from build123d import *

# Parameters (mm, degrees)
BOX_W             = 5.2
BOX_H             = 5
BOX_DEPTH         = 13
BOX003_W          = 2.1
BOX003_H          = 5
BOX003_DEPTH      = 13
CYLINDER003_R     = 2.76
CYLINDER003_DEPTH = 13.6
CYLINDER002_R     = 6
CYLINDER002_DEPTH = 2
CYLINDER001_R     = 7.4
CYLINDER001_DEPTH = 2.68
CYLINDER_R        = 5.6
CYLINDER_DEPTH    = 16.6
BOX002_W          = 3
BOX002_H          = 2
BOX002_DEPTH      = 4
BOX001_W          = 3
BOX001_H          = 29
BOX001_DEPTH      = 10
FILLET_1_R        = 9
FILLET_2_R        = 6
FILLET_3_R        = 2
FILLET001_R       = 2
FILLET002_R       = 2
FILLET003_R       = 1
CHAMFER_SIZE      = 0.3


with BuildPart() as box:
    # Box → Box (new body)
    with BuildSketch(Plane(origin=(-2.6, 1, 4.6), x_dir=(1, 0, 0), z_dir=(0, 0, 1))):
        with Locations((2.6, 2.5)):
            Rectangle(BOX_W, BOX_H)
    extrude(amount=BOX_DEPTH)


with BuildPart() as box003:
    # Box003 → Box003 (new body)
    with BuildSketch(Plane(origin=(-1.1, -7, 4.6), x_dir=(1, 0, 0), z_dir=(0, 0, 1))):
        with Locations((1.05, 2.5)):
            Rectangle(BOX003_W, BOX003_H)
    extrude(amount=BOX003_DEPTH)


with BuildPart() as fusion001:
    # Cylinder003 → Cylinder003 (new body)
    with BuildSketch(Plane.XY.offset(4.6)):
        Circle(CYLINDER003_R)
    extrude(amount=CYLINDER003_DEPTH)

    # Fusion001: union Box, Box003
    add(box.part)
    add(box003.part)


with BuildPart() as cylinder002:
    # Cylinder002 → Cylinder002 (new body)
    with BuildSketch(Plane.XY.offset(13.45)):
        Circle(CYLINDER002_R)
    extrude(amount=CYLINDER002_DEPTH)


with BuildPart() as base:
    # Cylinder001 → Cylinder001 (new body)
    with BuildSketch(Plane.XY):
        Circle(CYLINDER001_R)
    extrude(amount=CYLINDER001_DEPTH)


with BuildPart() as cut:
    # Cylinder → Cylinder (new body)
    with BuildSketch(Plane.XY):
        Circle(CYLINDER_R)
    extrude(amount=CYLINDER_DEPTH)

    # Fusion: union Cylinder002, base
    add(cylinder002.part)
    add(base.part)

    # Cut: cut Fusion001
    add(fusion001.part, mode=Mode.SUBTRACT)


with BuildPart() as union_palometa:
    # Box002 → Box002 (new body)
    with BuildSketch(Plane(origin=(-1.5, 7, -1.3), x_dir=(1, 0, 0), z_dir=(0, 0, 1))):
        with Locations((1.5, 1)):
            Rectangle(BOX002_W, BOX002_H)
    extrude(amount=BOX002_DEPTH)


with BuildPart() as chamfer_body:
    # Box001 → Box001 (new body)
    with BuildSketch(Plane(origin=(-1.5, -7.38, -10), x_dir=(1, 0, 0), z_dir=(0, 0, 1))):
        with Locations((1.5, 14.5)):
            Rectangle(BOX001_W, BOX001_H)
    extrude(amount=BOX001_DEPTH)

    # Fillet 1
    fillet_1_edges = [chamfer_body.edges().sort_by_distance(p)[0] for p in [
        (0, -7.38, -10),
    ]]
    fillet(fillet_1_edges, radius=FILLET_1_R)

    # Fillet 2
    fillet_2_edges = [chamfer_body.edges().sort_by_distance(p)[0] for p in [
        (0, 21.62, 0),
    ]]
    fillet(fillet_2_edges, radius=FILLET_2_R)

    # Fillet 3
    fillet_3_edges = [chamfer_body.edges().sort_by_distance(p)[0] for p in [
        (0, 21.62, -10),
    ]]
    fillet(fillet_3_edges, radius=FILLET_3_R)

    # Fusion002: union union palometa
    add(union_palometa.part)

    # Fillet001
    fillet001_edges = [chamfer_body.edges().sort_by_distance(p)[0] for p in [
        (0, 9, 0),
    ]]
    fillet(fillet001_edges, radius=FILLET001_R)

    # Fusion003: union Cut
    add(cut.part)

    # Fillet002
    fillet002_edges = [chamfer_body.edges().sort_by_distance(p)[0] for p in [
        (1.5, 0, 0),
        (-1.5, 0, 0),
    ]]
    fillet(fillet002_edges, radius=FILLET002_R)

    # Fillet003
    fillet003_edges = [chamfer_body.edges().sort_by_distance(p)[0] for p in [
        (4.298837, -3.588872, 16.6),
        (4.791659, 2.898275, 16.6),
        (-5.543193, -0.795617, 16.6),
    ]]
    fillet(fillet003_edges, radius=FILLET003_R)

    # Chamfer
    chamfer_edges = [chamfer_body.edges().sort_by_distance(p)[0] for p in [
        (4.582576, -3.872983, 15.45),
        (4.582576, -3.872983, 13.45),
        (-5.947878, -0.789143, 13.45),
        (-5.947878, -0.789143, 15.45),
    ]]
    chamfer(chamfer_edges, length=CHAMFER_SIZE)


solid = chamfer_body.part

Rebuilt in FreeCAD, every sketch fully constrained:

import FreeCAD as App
import Part
import Sketcher
from FreeCAD import Vector


def edges_at(feature, points):
    """Names of the edges that pass closest to the given points."""
    edges = feature.Shape.Edges
    near = lambda p: min(range(len(edges)), key=lambda i: edges[i].distToShape(Part.Vertex(*p))[0])
    return sorted({f"Edge{near(p) + 1}" for p in points})

doc = App.newDocument("Part")
body = doc.addObject("PartDesign::Body", "Body")

sketch1 = doc.addObject("Sketcher::SketchObject", "Sketch")
body.addObject(sketch1)
sketch1.AttachmentSupport = (doc.XY_Plane, [""])
sketch1.MapMode = "FlatFace"
sketch1.AttachmentOffset = App.Placement(Vector(0, 0, 4.6), App.Rotation())
sketch1.addGeometry([
    Part.LineSegment(Vector(-2.6, 6, 0), Vector(-2.6, 1, 0)),
    Part.LineSegment(Vector(-2.6, 1, 0), Vector(2.6, 1, 0)),
    Part.LineSegment(Vector(2.6, 1, 0), Vector(2.6, 6, 0)),
    Part.LineSegment(Vector(2.6, 6, 0), Vector(-2.6, 6, 0)),
], False)
sketch1.addConstraint([
    Sketcher.Constraint("Coincident", 0, 2, 1, 1),
    Sketcher.Constraint("Coincident", 1, 2, 2, 1),
    Sketcher.Constraint("Coincident", 2, 2, 3, 1),
    Sketcher.Constraint("Coincident", 3, 2, 0, 1),
    Sketcher.Constraint("Vertical", 0),
    Sketcher.Constraint("Horizontal", 1),
    Sketcher.Constraint("Vertical", 2),
    Sketcher.Constraint("Horizontal", 3),
    Sketcher.Constraint("DistanceY", 0, 2, 0, 1, 5.0),
    Sketcher.Constraint("DistanceX", 1, 1, 1, 2, 5.2),
    Sketcher.Constraint("DistanceY", -1, 1, 0, 2, 1.0),
    Sketcher.Constraint("DistanceX", 0, 2, -1, 1, 2.6),
])
pad1 = doc.addObject("PartDesign::Pad", "Pad")
body.addObject(pad1)
pad1.Profile = sketch1
pad1.Length = 13
body2 = doc.addObject("PartDesign::Body", "Body001")

sketch2 = doc.addObject("Sketcher::SketchObject", "Sketch001")
body2.addObject(sketch2)
sketch2.AttachmentSupport = (doc.getObject("XY_Plane001"), [""])
sketch2.MapMode = "FlatFace"
sketch2.AttachmentOffset = App.Placement(Vector(0, 0, 4.6), App.Rotation())
sketch2.addGeometry([
    Part.LineSegment(Vector(-1.1, -2, 0), Vector(-1.1, -7, 0)),
    Part.LineSegment(Vector(-1.1, -7, 0), Vector(1, -7, 0)),
    Part.LineSegment(Vector(1, -7, 0), Vector(1, -2, 0)),
    Part.LineSegment(Vector(1, -2, 0), Vector(-1.1, -2, 0)),
], False)
sketch2.addConstraint([
    Sketcher.Constraint("Coincident", 0, 2, 1, 1),
    Sketcher.Constraint("Coincident", 1, 2, 2, 1),
    Sketcher.Constraint("Coincident", 2, 2, 3, 1),
    Sketcher.Constraint("Coincident", 3, 2, 0, 1),
    Sketcher.Constraint("Vertical", 0),
    Sketcher.Constraint("Horizontal", 1),
    Sketcher.Constraint("Vertical", 2),
    Sketcher.Constraint("Horizontal", 3),
    Sketcher.Constraint("DistanceY", 0, 2, 0, 1, 5.0),
    Sketcher.Constraint("DistanceX", 1, 1, 1, 2, 2.1),
    Sketcher.Constraint("DistanceY", 0, 2, -1, 1, 7.0),
    Sketcher.Constraint("DistanceX", -1, 1, 1, 2, 1.0),
])
pad2 = doc.addObject("PartDesign::Pad", "Pad001")
body2.addObject(pad2)
pad2.Profile = sketch2
pad2.Length = 13
body3 = doc.addObject("PartDesign::Body", "Body002")

sketch3 = doc.addObject("Sketcher::SketchObject", "Sketch002")
body3.addObject(sketch3)
sketch3.AttachmentSupport = (doc.getObject("XY_Plane002"), [""])
sketch3.MapMode = "FlatFace"
sketch3.AttachmentOffset = App.Placement(Vector(0, 0, 4.6), App.Rotation())
sketch3.addGeometry(Part.Circle(Vector(0, 0, 0), Vector(0, 0, 1), 2.76), False)
sketch3.addConstraint([
    Sketcher.Constraint("Coincident", 0, 3, -1, 1),
    Sketcher.Constraint("Diameter", 0, 5.52),
])
pad3 = doc.addObject("PartDesign::Pad", "Pad002")
body3.addObject(pad3)
pad3.Profile = sketch3
pad3.Length = 13.6
doc.recompute()

boolean = doc.addObject("PartDesign::Boolean", "Boolean")
body3.addObject(boolean)
boolean.Type = "Fuse"
boolean.addObjects([body])
doc.recompute()

boolean2 = doc.addObject("PartDesign::Boolean", "Boolean001")
body3.addObject(boolean2)
boolean2.Type = "Fuse"
boolean2.addObjects([body2])
body4 = doc.addObject("PartDesign::Body", "Body003")

sketch4 = doc.addObject("Sketcher::SketchObject", "Sketch003")
body4.addObject(sketch4)
sketch4.AttachmentSupport = (doc.getObject("XY_Plane003"), [""])
sketch4.MapMode = "FlatFace"
sketch4.AttachmentOffset = App.Placement(Vector(0, 0, 13.45), App.Rotation())
sketch4.addGeometry(Part.Circle(Vector(0, 0, 0), Vector(0, 0, 1), 6), False)
sketch4.addConstraint([
    Sketcher.Constraint("Coincident", 0, 3, -1, 1),
    Sketcher.Constraint("Diameter", 0, 12.0),
])
pad4 = doc.addObject("PartDesign::Pad", "Pad003")
body4.addObject(pad4)
pad4.Profile = sketch4
pad4.Length = 2
body5 = doc.addObject("PartDesign::Body", "Body004")

sketch5 = doc.addObject("Sketcher::SketchObject", "Sketch004")
body5.addObject(sketch5)
sketch5.AttachmentSupport = (doc.getObject("XY_Plane004"), [""])
sketch5.MapMode = "FlatFace"
sketch5.addGeometry(Part.Circle(Vector(0, 0, 0), Vector(0, 0, 1), 7.4), False)
sketch5.addConstraint([
    Sketcher.Constraint("Coincident", 0, 3, -1, 1),
    Sketcher.Constraint("Diameter", 0, 14.8),
])
pad5 = doc.addObject("PartDesign::Pad", "Pad004")
body5.addObject(pad5)
pad5.Profile = sketch5
pad5.Length = 2.68
body6 = doc.addObject("PartDesign::Body", "Body005")

sketch6 = doc.addObject("Sketcher::SketchObject", "Sketch005")
body6.addObject(sketch6)
sketch6.AttachmentSupport = (doc.getObject("XY_Plane005"), [""])
sketch6.MapMode = "FlatFace"
sketch6.addGeometry(Part.Circle(Vector(0, 0, 0), Vector(0, 0, 1), 5.6), False)
sketch6.addConstraint([
    Sketcher.Constraint("Coincident", 0, 3, -1, 1),
    Sketcher.Constraint("Diameter", 0, 11.2),
])
pad6 = doc.addObject("PartDesign::Pad", "Pad005")
body6.addObject(pad6)
pad6.Profile = sketch6
pad6.Length = 16.6
doc.recompute()

boolean3 = doc.addObject("PartDesign::Boolean", "Boolean002")
body6.addObject(boolean3)
boolean3.Type = "Fuse"
boolean3.addObjects([body4])
doc.recompute()

boolean4 = doc.addObject("PartDesign::Boolean", "Boolean003")
body6.addObject(boolean4)
boolean4.Type = "Fuse"
boolean4.addObjects([body5])
doc.recompute()

boolean5 = doc.addObject("PartDesign::Boolean", "Boolean004")
body6.addObject(boolean5)
boolean5.Type = "Cut"
boolean5.addObjects([body3])
body7 = doc.addObject("PartDesign::Body", "Body006")

sketch7 = doc.addObject("Sketcher::SketchObject", "Sketch006")
body7.addObject(sketch7)
sketch7.AttachmentSupport = (doc.getObject("XY_Plane006"), [""])
sketch7.MapMode = "FlatFace"
sketch7.AttachmentOffset = App.Placement(Vector(0, 0, -1.3), App.Rotation())
sketch7.addGeometry([
    Part.LineSegment(Vector(-1.5, 9, 0), Vector(-1.5, 7, 0)),
    Part.LineSegment(Vector(-1.5, 7, 0), Vector(1.5, 7, 0)),
    Part.LineSegment(Vector(1.5, 7, 0), Vector(1.5, 9, 0)),
    Part.LineSegment(Vector(1.5, 9, 0), Vector(-1.5, 9, 0)),
], False)
sketch7.addConstraint([
    Sketcher.Constraint("Coincident", 0, 2, 1, 1),
    Sketcher.Constraint("Coincident", 1, 2, 2, 1),
    Sketcher.Constraint("Coincident", 2, 2, 3, 1),
    Sketcher.Constraint("Coincident", 3, 2, 0, 1),
    Sketcher.Constraint("Vertical", 0),
    Sketcher.Constraint("Horizontal", 1),
    Sketcher.Constraint("Vertical", 2),
    Sketcher.Constraint("Horizontal", 3),
    Sketcher.Constraint("DistanceX", 1, 1, 1, 2, 3.0),
    Sketcher.Constraint("DistanceY", 0, 2, 0, 1, 2.0),
    Sketcher.Constraint("DistanceY", -1, 1, 0, 2, 7.0),
    Sketcher.Constraint("DistanceX", 0, 2, -1, 1, 1.5),
])
pad7 = doc.addObject("PartDesign::Pad", "Pad006")
body7.addObject(pad7)
pad7.Profile = sketch7
pad7.Length = 4
body8 = doc.addObject("PartDesign::Body", "Body007")

sketch8 = doc.addObject("Sketcher::SketchObject", "Sketch007")
body8.addObject(sketch8)
sketch8.AttachmentSupport = (doc.getObject("XY_Plane007"), [""])
sketch8.MapMode = "FlatFace"
sketch8.AttachmentOffset = App.Placement(Vector(0, 0, -10), App.Rotation())
sketch8.addGeometry([
    Part.LineSegment(Vector(-1.5, 21.62, 0), Vector(-1.5, -7.38, 0)),
    Part.LineSegment(Vector(-1.5, -7.38, 0), Vector(1.5, -7.38, 0)),
    Part.LineSegment(Vector(1.5, -7.38, 0), Vector(1.5, 21.62, 0)),
    Part.LineSegment(Vector(1.5, 21.62, 0), Vector(-1.5, 21.62, 0)),
], False)
sketch8.addConstraint([
    Sketcher.Constraint("Coincident", 0, 2, 1, 1),
    Sketcher.Constraint("Coincident", 1, 2, 2, 1),
    Sketcher.Constraint("Coincident", 2, 2, 3, 1),
    Sketcher.Constraint("Coincident", 3, 2, 0, 1),
    Sketcher.Constraint("Vertical", 0),
    Sketcher.Constraint("Horizontal", 1),
    Sketcher.Constraint("Vertical", 2),
    Sketcher.Constraint("Horizontal", 3),
    Sketcher.Constraint("DistanceX", 1, 1, 1, 2, 3.0),
    Sketcher.Constraint("DistanceY", 0, 2, 0, 1, 29.0),
    Sketcher.Constraint("DistanceX", 0, 2, -1, 1, 1.5),
    Sketcher.Constraint("DistanceY", 0, 2, -1, 1, 7.38),
])
pad8 = doc.addObject("PartDesign::Pad", "Pad007")
body8.addObject(pad8)
pad8.Profile = sketch8
pad8.Length = 10
doc.recompute()

fillet = doc.addObject("PartDesign::Fillet", "Fillet")
body8.addObject(fillet)
fillet.Base = (pad8, edges_at(pad8, [(0, -7.38, -10)]))
fillet.Radius = 9
doc.recompute()

fillet2 = doc.addObject("PartDesign::Fillet", "Fillet001")
body8.addObject(fillet2)
fillet2.Base = (fillet, edges_at(fillet, [(0, 21.62, 0)]))
fillet2.Radius = 6
doc.recompute()

fillet3 = doc.addObject("PartDesign::Fillet", "Fillet002")
body8.addObject(fillet3)
fillet3.Base = (fillet2, edges_at(fillet2, [(0, 21.62, -10)]))
fillet3.Radius = 2
doc.recompute()

boolean6 = doc.addObject("PartDesign::Boolean", "Boolean005")
body8.addObject(boolean6)
boolean6.Type = "Fuse"
boolean6.addObjects([body7])
doc.recompute()

fillet4 = doc.addObject("PartDesign::Fillet", "Fillet003")
body8.addObject(fillet4)
fillet4.Base = (boolean6, edges_at(boolean6, [(0, 9, 0)]))
fillet4.Radius = 2
doc.recompute()

boolean7 = doc.addObject("PartDesign::Boolean", "Boolean006")
body8.addObject(boolean7)
boolean7.Type = "Fuse"
boolean7.addObjects([body6])
doc.recompute()

fillet5 = doc.addObject("PartDesign::Fillet", "Fillet004")
body8.addObject(fillet5)
fillet5.Base = (boolean7, edges_at(boolean7, [(1.5, 0, 0), (-1.5, 0, 0)]))
fillet5.Radius = 2
doc.recompute()

fillet6 = doc.addObject("PartDesign::Fillet", "Fillet005")
body8.addObject(fillet6)
fillet6.Base = (fillet5, edges_at(fillet5, [(5.536, -0.846, 16.6), (5.536, -0.846, 16.6), (-5.543, -0.796, 16.6)]))
fillet6.Radius = 1
doc.recompute()

chamfer = doc.addObject("PartDesign::Chamfer", "Chamfer")
body8.addObject(chamfer)
chamfer.Base = (fillet6, edges_at(fillet6, [
    (5.941, -0.839, 15.45),
    (5.941, -0.839, 13.45),
    (-5.948, -0.789, 13.45),
    (-5.948, -0.789, 15.45),
]))
chamfer.Size = 0.3

doc.recompute()
